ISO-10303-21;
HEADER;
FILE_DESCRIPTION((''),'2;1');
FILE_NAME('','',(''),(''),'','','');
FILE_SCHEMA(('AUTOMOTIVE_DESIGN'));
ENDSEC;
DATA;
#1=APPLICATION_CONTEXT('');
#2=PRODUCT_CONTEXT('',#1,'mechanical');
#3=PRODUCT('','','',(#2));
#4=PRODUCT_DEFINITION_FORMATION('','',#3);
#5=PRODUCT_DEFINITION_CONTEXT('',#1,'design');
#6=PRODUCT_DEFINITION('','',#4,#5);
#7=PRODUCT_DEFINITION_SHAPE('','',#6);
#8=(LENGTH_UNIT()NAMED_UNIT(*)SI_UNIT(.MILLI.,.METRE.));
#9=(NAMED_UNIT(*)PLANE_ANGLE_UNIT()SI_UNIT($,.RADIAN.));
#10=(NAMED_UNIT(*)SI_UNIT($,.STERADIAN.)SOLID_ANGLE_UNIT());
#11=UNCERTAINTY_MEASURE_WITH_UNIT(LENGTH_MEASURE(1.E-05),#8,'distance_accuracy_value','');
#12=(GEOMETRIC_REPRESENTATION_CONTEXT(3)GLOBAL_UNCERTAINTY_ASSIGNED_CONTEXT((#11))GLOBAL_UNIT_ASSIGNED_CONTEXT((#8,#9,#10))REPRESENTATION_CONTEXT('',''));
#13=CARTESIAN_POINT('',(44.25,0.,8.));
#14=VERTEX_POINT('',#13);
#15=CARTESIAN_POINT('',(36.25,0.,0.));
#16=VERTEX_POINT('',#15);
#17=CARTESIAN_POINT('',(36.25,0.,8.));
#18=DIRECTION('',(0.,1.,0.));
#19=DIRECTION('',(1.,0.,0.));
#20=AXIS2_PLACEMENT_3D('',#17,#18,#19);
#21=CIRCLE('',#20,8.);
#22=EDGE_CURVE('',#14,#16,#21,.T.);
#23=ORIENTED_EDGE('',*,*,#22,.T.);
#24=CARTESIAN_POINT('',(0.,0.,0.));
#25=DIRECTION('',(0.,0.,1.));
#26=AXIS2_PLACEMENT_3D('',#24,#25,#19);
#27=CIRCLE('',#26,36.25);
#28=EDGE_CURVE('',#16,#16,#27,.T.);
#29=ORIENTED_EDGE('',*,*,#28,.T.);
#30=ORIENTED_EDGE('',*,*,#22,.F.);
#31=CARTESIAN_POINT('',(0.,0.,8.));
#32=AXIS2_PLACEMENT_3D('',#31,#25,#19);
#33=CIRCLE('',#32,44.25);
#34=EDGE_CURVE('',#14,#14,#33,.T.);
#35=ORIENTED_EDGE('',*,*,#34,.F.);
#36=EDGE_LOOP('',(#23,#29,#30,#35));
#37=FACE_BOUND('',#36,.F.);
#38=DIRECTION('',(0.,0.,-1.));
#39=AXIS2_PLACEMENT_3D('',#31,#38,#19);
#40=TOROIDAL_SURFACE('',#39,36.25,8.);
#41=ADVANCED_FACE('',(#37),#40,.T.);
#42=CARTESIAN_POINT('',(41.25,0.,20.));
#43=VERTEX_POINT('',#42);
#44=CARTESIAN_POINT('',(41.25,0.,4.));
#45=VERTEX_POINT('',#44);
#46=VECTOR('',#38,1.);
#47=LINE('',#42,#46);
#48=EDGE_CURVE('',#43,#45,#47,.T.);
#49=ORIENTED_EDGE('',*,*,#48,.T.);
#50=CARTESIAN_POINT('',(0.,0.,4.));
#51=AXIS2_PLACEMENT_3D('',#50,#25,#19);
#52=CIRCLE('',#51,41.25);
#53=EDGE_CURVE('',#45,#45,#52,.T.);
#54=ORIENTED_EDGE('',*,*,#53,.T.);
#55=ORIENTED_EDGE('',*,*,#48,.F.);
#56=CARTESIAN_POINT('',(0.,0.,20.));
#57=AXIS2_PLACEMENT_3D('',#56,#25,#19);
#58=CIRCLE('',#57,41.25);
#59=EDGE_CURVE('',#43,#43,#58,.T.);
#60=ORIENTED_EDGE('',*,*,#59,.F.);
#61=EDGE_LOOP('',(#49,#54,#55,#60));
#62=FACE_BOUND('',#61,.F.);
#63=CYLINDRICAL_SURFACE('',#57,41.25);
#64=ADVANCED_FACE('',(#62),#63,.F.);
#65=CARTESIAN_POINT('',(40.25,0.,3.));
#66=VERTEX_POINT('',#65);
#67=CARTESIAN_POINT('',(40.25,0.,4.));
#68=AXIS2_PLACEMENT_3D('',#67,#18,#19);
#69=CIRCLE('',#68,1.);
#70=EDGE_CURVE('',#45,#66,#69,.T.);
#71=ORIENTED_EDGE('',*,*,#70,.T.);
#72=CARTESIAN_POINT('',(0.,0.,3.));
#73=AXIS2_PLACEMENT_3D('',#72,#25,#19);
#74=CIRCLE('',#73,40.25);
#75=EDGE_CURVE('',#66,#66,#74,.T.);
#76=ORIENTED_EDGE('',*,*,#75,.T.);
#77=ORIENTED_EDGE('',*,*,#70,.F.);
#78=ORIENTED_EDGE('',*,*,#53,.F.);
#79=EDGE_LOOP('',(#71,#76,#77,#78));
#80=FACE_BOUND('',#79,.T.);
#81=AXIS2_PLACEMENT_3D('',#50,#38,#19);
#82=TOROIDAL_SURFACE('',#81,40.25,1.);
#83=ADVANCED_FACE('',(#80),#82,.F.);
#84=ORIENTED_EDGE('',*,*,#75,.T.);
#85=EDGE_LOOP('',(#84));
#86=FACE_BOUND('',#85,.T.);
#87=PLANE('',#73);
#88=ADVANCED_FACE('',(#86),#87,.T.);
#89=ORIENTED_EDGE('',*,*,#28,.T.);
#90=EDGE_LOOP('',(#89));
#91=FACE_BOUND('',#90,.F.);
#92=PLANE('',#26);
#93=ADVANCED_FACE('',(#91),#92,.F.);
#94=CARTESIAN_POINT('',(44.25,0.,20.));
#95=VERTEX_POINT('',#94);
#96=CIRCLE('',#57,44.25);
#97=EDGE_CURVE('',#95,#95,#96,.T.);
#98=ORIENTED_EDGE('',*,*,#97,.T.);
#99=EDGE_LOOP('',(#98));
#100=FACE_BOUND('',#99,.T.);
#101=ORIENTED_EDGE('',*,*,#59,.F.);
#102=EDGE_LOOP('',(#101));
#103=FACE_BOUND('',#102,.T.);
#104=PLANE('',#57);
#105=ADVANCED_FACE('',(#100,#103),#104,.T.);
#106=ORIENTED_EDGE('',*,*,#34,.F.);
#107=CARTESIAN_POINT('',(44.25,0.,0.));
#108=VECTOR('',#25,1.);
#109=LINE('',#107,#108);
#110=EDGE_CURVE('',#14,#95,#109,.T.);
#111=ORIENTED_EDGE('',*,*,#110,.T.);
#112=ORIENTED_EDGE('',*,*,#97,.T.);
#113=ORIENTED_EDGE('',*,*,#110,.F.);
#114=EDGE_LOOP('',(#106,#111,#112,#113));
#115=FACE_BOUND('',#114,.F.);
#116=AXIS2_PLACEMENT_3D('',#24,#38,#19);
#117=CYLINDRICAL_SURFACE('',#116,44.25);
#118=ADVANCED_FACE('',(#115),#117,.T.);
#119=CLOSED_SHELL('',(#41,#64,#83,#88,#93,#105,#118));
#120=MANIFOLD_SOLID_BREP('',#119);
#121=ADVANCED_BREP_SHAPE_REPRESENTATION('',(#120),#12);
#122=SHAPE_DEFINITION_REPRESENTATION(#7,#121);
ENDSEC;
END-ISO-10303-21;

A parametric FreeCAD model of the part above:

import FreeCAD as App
import Part
import Sketcher
from FreeCAD import Vector


def edges_at(feature, points):
    """Names of the edges that pass closest to the given points."""
    edges = feature.Shape.Edges
    near = lambda p: min(range(len(edges)), key=lambda i: edges[i].distToShape(Part.Vertex(*p))[0])
    return sorted({f"Edge{near(p) + 1}" for p in points})

doc = App.newDocument("Part")
body = doc.addObject("PartDesign::Body", "Body")

sketch1 = body.newObject("Sketcher::SketchObject", "Sketch")
sketch1.AttachmentSupport = (doc.getObject("XY_Plane"), [""])
sketch1.MapMode = "FlatFace"
sketch1.addGeometry(Part.Circle(Vector(0, 0, 0), Vector(0, 0, 1), 44.25), False)
sketch1.addConstraint([
    Sketcher.Constraint("Coincident", 0, 3, -1, 1),
    Sketcher.Constraint("Diameter", 0, 88.5),
])
pad1 = body.newObject("PartDesign::Pad", "Pad")
pad1.Profile = sketch1
pad1.Length = 20

sketch2 = body.newObject("Sketcher::SketchObject", "Sketch001")
sketch2.AttachmentSupport = (doc.getObject("XY_Plane"), [""])
sketch2.MapMode = "FlatFace"
sketch2.AttachmentOffset = App.Placement(Vector(0, 0, 20), App.Rotation())
sketch2.addGeometry(Part.Circle(Vector(0, 0, 0), Vector(0, 0, 1), 41.25), False)
sketch2.addConstraint([
    Sketcher.Constraint("Coincident", 0, 3, -1, 1),
    Sketcher.Constraint("Diameter", 0, 82.5),
])
pocket1 = body.newObject("PartDesign::Pocket", "Pocket")
pocket1.Profile = sketch2
pocket1.Length = 17
doc.recompute()

fillet = body.newObject("PartDesign::Fillet", "Fillet")
fillet.Base = (pocket1, edges_at(pocket1, [(-41.25, 0, 3)]))
fillet.Radius = 1
doc.recompute()

fillet2 = body.newObject("PartDesign::Fillet", "Fillet001")
fillet2.Base = (fillet, edges_at(fillet, [(-44.25, 0, 0)]))
fillet2.Radius = 8

doc.recompute()
